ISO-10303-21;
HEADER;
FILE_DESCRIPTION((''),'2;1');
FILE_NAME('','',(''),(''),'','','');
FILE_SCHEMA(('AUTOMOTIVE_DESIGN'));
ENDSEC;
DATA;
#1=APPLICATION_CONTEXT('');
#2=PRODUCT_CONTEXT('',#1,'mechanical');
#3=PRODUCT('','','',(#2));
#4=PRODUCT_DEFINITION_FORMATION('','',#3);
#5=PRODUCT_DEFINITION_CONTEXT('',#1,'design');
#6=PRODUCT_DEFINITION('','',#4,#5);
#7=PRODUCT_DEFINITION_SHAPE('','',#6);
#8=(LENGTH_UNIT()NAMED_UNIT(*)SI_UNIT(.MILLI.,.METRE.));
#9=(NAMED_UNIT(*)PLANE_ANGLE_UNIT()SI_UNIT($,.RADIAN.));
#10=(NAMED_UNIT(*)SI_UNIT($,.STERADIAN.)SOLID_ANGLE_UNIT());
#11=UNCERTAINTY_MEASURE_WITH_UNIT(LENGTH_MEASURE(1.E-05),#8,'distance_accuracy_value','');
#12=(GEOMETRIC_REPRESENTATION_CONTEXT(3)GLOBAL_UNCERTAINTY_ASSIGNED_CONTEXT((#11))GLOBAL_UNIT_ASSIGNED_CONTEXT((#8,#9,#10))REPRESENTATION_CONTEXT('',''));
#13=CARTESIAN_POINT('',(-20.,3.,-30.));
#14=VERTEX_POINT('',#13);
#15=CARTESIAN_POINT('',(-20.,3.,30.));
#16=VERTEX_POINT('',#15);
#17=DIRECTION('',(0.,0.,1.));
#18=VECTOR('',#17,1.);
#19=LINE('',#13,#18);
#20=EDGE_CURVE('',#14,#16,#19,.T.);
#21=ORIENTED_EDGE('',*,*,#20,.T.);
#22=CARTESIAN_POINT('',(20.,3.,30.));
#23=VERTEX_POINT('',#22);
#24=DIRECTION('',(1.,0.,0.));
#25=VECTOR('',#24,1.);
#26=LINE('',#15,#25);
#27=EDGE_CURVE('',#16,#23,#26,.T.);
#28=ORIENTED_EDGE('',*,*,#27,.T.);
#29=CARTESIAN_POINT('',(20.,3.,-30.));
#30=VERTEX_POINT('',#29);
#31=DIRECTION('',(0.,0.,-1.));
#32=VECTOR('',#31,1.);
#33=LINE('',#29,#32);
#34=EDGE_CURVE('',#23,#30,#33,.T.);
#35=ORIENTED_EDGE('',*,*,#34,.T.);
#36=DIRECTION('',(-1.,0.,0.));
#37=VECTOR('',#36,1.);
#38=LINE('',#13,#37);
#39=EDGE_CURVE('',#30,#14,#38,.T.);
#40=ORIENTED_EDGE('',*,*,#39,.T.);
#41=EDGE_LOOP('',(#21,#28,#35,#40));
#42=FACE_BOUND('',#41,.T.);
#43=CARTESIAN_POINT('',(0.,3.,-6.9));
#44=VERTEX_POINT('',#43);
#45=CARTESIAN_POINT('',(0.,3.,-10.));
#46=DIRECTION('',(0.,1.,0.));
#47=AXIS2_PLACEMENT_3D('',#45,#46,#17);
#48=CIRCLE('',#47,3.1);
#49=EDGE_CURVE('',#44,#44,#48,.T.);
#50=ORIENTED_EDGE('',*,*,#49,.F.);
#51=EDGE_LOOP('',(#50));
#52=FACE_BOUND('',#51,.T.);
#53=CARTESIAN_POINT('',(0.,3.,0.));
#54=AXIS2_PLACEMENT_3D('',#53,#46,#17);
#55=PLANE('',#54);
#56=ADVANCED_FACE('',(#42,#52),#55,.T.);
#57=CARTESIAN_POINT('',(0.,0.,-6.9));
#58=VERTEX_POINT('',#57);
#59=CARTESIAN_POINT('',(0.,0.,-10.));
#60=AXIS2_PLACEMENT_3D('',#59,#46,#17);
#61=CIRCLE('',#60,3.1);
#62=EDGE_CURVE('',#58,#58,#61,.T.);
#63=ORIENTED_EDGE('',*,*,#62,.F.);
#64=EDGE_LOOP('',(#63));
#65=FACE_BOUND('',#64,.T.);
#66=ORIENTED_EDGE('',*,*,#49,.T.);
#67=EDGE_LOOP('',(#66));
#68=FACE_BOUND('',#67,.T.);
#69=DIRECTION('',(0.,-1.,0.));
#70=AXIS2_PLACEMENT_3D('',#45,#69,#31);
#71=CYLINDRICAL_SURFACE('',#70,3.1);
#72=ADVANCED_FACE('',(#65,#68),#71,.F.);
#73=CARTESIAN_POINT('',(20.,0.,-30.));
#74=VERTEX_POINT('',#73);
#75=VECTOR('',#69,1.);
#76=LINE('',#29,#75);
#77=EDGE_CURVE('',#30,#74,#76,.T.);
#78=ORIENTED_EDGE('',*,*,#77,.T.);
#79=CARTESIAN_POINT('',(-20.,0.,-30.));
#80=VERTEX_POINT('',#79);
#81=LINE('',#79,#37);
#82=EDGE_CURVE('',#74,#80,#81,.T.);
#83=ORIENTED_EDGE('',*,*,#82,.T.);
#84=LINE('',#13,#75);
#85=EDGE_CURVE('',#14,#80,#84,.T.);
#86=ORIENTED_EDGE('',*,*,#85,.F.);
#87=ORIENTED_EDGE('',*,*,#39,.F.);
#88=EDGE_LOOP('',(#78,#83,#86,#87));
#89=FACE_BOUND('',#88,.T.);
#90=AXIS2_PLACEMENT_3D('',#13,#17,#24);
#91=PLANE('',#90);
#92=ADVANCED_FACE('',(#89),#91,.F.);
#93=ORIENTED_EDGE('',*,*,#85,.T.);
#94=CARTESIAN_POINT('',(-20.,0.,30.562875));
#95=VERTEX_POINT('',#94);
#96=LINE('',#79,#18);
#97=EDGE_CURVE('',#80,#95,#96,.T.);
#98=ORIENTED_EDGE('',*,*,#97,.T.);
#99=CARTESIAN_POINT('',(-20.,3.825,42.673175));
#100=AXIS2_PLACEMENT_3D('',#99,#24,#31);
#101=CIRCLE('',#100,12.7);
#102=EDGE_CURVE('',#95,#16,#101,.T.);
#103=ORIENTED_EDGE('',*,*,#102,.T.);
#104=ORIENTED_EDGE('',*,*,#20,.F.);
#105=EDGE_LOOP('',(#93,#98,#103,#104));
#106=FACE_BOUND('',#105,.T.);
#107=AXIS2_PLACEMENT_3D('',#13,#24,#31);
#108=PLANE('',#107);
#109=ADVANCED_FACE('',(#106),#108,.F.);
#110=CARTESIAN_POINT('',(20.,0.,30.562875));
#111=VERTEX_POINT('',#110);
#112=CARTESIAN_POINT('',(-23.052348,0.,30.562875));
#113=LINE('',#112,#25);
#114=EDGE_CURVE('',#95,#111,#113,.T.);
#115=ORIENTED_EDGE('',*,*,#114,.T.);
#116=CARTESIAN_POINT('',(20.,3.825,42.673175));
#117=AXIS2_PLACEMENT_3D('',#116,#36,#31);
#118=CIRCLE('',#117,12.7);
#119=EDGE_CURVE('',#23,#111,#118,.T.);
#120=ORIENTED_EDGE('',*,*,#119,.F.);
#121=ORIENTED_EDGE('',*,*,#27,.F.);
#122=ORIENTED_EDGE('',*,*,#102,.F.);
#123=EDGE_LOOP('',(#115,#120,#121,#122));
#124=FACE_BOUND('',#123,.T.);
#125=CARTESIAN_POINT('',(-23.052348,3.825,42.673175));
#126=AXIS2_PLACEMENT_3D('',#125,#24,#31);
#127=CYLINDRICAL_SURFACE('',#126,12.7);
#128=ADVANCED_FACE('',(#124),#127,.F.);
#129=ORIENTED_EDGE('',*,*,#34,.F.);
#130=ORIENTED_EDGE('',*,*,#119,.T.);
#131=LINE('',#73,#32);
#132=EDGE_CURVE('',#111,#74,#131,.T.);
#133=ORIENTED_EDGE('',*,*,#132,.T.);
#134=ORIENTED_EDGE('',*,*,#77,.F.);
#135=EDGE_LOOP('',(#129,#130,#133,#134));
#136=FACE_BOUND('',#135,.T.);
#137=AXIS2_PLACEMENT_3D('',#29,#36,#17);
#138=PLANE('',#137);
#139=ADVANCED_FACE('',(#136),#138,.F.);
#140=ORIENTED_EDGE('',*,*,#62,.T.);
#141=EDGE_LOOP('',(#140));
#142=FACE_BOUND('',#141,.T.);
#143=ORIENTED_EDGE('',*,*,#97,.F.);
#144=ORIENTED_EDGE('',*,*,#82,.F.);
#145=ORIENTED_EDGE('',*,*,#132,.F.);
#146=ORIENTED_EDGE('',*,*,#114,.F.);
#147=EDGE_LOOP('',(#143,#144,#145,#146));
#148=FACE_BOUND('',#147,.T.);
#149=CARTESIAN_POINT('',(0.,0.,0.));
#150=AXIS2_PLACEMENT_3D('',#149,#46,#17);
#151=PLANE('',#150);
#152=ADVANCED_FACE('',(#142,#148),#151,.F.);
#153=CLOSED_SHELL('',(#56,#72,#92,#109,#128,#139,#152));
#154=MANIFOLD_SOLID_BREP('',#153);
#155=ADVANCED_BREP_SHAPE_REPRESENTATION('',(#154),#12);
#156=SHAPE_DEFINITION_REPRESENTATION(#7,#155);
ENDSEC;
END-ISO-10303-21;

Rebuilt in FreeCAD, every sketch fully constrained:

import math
import FreeCAD as App
import Part
import Sketcher
from FreeCAD import Vector
Q = App.Units.Quantity


def add_polygon(sketch, points):
    """Adds a closed chain of lines whose ends are joined by coincident constraints."""
    first, n = sketch.GeometryCount, len(points)
    for a, b in zip(points, points[1:] + points[:1]):
        sketch.addGeometry(Part.LineSegment(App.Vector(*a, 0), App.Vector(*b, 0)), False)
    for i in range(n):
        sketch.addConstraint(Sketcher.Constraint("Coincident", first + i, 2, first + (i + 1) % n, 1))

doc = App.newDocument("Part")
body = doc.addObject("PartDesign::Body", "Body")

# Sketch on XZ plane
sketch1 = body.newObject("Sketcher::SketchObject", "Sketch")
sketch1.AttachmentSupport = (doc.getObject("XZ_Plane"), [""])
sketch1.MapMode = "FlatFace"
add_polygon(sketch1, [(-20, -30), (-20, 30), (20, 30), (20, -30)])  # lines 0-3
sketch1.addGeometry(Part.Circle(Vector(0, -10, 0), Vector(0, 0, 1), 3.1), False)  # 4
sketch1.addConstraint(Sketcher.Constraint("Vertical", 0))
sketch1.addConstraint(Sketcher.Constraint("Horizontal", 1))
sketch1.addConstraint(Sketcher.Constraint("Vertical", 2))
sketch1.addConstraint(Sketcher.Constraint("Horizontal", 3))
sketch1.addConstraint(Sketcher.Constraint("Symmetric", 0, 2, 2, 2, -1, 1))
sketch1.addConstraint(Sketcher.Constraint("PointOnObject", 4, 3, -2))
sketch1.addConstraint(Sketcher.Constraint("Diameter", 4, Q("6.2 mm")))
sketch1.addConstraint(Sketcher.Constraint("DistanceX", 1, 1, 1, 2, Q("40 mm")))
sketch1.addConstraint(Sketcher.Constraint("DistanceY", 0, 1, 0, 2, Q("60 mm")))
sketch1.addConstraint(Sketcher.Constraint("DistanceY", 4, 3, -1, 1, Q("10 mm")))
pad1 = body.newObject("PartDesign::Pad", "Pad")
pad1.Profile = sketch1
pad1.Length = 3
pad1.Reversed = True

# Sketch on YZ plane
sketch2 = body.newObject("Sketcher::SketchObject", "Sketch001")
sketch2.AttachmentSupport = (doc.getObject("YZ_Plane"), [""])
sketch2.MapMode = "FlatFace"
sketch2.AttachmentOffset = App.Placement(Vector(0, 0, 20), App.Rotation())
sketch2.addGeometry(Part.LineSegment(Vector(0, 30.562875, 0), Vector(0, 30, 0)), False)
sketch2.addGeometry(Part.LineSegment(Vector(0, 30, 0), Vector(3, 30, 0)), False)
sketch2.addGeometry(Part.ArcOfCircle(Part.Circle(Vector(3.825, 42.673175, 0), Vector(0, 0, 1), 12.7), math.radians(-107.528557), math.radians(-93.724593)), False)
sketch2.addConstraint(Sketcher.Constraint("Coincident", 0, 2, 1, 1))
sketch2.addConstraint(Sketcher.Constraint("Coincident", 1, 2, 2, 2))
sketch2.addConstraint(Sketcher.Constraint("Coincident", 2, 1, 0, 1))
sketch2.addConstraint(Sketcher.Constraint("Vertical", 0))
sketch2.addConstraint(Sketcher.Constraint("Horizontal", 1))
sketch2.addConstraint(Sketcher.Constraint("PointOnObject", 0, 2, -2))
sketch2.addConstraint(Sketcher.Constraint("Radius", 2, Q("12.7 mm")))
sketch2.addConstraint(Sketcher.Constraint("DistanceX", 1, 1, 1, 2, Q("3 mm")))
sketch2.addConstraint(Sketcher.Constraint("DistanceY", -1, 1, 0, 2, Q("30 mm")))
sketch2.addConstraint(Sketcher.Constraint("DistanceX", -1, 1, 2, 3, Q("3.825 mm")))
pad2 = body.newObject("PartDesign::Pad", "Pad001")
pad2.Profile = sketch2
pad2.Length = 40
pad2.Reversed = True

doc.recompute()
